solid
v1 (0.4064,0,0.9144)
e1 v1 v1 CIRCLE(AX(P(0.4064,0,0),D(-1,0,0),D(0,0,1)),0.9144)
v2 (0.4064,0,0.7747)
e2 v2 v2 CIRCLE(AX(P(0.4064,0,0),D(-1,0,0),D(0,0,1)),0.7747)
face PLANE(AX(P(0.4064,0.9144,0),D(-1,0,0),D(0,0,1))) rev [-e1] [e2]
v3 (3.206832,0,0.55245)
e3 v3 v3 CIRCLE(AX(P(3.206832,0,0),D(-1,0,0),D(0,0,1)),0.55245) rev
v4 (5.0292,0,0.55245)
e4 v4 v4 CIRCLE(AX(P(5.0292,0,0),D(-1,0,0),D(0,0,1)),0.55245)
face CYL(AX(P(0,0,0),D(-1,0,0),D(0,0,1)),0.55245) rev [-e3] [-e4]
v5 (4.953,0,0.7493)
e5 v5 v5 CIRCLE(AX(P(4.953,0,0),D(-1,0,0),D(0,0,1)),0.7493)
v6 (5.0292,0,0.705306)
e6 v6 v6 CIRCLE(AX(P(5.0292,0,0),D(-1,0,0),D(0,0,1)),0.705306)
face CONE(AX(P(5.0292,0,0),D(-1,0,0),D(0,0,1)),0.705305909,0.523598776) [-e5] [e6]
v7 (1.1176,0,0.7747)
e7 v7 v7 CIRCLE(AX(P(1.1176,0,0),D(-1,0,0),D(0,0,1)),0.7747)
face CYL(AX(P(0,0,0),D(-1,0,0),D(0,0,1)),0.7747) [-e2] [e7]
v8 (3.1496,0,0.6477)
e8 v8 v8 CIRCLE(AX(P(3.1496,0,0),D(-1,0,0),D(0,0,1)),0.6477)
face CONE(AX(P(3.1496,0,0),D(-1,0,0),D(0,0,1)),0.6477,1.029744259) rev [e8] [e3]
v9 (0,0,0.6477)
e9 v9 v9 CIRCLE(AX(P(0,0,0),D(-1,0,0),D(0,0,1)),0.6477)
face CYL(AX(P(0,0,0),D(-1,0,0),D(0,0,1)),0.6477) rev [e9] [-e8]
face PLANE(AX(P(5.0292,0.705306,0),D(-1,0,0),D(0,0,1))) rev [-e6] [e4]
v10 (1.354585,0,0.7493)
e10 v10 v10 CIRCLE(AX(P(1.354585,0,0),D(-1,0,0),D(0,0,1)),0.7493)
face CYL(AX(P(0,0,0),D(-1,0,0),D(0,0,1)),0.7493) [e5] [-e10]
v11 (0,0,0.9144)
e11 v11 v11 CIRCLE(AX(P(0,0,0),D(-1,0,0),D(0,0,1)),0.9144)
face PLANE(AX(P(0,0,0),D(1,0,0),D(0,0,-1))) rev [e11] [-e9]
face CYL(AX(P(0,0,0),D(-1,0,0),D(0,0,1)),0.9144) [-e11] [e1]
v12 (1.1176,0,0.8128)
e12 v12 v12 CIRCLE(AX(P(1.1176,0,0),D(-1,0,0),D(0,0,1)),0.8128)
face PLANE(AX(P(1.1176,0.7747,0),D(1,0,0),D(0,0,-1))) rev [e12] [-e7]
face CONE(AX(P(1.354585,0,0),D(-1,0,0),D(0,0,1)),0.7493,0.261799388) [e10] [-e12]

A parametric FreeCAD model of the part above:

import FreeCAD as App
import Part
import Sketcher
Q = App.Units.Quantity


def add_polygon(sketch, points):
    """Adds a closed chain of lines whose ends are joined by coincident constraints."""
    first, n = sketch.GeometryCount, len(points)
    for a, b in zip(points, points[1:] + points[:1]):
        sketch.addGeometry(Part.LineSegment(App.Vector(*a, 0), App.Vector(*b, 0)), False)
    for i in range(n):
        sketch.addConstraint(Sketcher.Constraint("Coincident", first + i, 2, first + (i + 1) % n, 1))

doc = App.newDocument("Part")
body = doc.addObject("PartDesign::Body", "Body")

# Sketch on XY plane
sketch1 = body.newObject("Sketcher::SketchObject", "Sketch")
sketch1.AttachmentSupport = (doc.getObject("XY_Plane"), [""])
sketch1.MapMode = "FlatFace"
add_polygon(sketch1, [(0, 0.914), (0, 0), (5.029, 0), (5.029, 0.705), (4.953, 0.749), (1.355, 0.749), (1.118, 0.813), (1.118, 0.775), (0.406, 0.775), (0.406, 0.914)])  # lines 0-9
sketch1.addConstraint([
    Sketcher.Constraint("Vertical", 0),
    Sketcher.Constraint("Horizontal", 1),
    Sketcher.Constraint("Vertical", 2),
    Sketcher.Constraint("Horizontal", 4),
    Sketcher.Constraint("Vertical", 6),
    Sketcher.Constraint("Horizontal", 7),
    Sketcher.Constraint("Vertical", 8),
    Sketcher.Constraint("Horizontal", 9),
    Sketcher.Constraint("Coincident", 0, 2, -1, 1),
    Sketcher.Constraint("Angle", 3, Q("150 deg")),
    Sketcher.Constraint("Angle", 5, Q("165 deg")),
    Sketcher.Constraint("DistanceX", 1, 1, 1, 2, Q("0.198 in")),
    Sketcher.Constraint("DistanceX", 7, 2, 7, 1, Q("0.028 in")),
    Sketcher.Constraint("DistanceX", 9, 2, 9, 1, Q("0.016 in")),
    Sketcher.Constraint("DistanceY", 0, 2, 0, 1, Q("0.036 in")),
    Sketcher.Constraint("DistanceY", 6, 2, 6, 1, Q("0.0015 in")),
    Sketcher.Constraint("DistanceY", 8, 1, 8, 2, Q("0.0055 in")),
    Sketcher.Constraint("DistanceX", -1, 1, 3, 2, Q("0.195 in")),
    Sketcher.Constraint("DistanceY", 4, 2, 6, 2, Q("0.001 in")),
])
revolution = body.newObject("PartDesign::Revolution", "Revolution")
revolution.Profile = sketch1
revolution.ReferenceAxis = (sketch1, ["H_Axis"])
revolution.Angle = 360

# Sketch on YZ plane
sketch2 = body.newObject("Sketcher::SketchObject", "Sketch001")
sketch2.AttachmentSupport = (doc.getObject("YZ_Plane"), [""])
sketch2.MapMode = "FlatFace"
sketch2.addGeometry(Part.Circle(App.Vector(0, 0, 0), App.Vector(0, 0, 1), 0.6), False)
sketch2.addConstraint([
    Sketcher.Constraint("Coincident", 0, 3, -1, 1),
    Sketcher.Constraint("Diameter", 0, Q("0.051 in")),
])
doc.recompute()
hole = body.newObject("PartDesign::Hole", "Hole")
hole.Profile = sketch2
hole.ThreadType = "None"
hole.Diameter = Q("0.051 in")
hole.DepthType = "Dimension"
hole.Depth = Q("0.124 in")
hole.DrillPoint = "Angled"
hole.DrillPointAngle = 118
hole.Reversed = True

# Sketch on YZ plane
sketch3 = body.newObject("Sketcher::SketchObject", "Sketch002")
sketch3.AttachmentSupport = (doc.getObject("YZ_Plane"), [""])
sketch3.MapMode = "FlatFace"
sketch3.addGeometry(Part.Circle(App.Vector(0, 0, 0), App.Vector(0, 0, 1), 0.6), False)
sketch3.addConstraint([
    Sketcher.Constraint("Coincident", 0, 3, -1, 1),
    Sketcher.Constraint("Diameter", 0, Q("0.0435 in")),
])
doc.recompute()
hole2 = body.newObject("PartDesign::Hole", "Hole001")
hole2.Profile = sketch3
hole2.ThreadType = "None"
hole2.Diameter = Q("0.0435 in")
hole2.DepthType = "Dimension"
hole2.Depth = Q("0.198 in")
hole2.DrillPoint = "Angled"
hole2.DrillPointAngle = 118
hole2.Reversed = True

doc.recompute()
